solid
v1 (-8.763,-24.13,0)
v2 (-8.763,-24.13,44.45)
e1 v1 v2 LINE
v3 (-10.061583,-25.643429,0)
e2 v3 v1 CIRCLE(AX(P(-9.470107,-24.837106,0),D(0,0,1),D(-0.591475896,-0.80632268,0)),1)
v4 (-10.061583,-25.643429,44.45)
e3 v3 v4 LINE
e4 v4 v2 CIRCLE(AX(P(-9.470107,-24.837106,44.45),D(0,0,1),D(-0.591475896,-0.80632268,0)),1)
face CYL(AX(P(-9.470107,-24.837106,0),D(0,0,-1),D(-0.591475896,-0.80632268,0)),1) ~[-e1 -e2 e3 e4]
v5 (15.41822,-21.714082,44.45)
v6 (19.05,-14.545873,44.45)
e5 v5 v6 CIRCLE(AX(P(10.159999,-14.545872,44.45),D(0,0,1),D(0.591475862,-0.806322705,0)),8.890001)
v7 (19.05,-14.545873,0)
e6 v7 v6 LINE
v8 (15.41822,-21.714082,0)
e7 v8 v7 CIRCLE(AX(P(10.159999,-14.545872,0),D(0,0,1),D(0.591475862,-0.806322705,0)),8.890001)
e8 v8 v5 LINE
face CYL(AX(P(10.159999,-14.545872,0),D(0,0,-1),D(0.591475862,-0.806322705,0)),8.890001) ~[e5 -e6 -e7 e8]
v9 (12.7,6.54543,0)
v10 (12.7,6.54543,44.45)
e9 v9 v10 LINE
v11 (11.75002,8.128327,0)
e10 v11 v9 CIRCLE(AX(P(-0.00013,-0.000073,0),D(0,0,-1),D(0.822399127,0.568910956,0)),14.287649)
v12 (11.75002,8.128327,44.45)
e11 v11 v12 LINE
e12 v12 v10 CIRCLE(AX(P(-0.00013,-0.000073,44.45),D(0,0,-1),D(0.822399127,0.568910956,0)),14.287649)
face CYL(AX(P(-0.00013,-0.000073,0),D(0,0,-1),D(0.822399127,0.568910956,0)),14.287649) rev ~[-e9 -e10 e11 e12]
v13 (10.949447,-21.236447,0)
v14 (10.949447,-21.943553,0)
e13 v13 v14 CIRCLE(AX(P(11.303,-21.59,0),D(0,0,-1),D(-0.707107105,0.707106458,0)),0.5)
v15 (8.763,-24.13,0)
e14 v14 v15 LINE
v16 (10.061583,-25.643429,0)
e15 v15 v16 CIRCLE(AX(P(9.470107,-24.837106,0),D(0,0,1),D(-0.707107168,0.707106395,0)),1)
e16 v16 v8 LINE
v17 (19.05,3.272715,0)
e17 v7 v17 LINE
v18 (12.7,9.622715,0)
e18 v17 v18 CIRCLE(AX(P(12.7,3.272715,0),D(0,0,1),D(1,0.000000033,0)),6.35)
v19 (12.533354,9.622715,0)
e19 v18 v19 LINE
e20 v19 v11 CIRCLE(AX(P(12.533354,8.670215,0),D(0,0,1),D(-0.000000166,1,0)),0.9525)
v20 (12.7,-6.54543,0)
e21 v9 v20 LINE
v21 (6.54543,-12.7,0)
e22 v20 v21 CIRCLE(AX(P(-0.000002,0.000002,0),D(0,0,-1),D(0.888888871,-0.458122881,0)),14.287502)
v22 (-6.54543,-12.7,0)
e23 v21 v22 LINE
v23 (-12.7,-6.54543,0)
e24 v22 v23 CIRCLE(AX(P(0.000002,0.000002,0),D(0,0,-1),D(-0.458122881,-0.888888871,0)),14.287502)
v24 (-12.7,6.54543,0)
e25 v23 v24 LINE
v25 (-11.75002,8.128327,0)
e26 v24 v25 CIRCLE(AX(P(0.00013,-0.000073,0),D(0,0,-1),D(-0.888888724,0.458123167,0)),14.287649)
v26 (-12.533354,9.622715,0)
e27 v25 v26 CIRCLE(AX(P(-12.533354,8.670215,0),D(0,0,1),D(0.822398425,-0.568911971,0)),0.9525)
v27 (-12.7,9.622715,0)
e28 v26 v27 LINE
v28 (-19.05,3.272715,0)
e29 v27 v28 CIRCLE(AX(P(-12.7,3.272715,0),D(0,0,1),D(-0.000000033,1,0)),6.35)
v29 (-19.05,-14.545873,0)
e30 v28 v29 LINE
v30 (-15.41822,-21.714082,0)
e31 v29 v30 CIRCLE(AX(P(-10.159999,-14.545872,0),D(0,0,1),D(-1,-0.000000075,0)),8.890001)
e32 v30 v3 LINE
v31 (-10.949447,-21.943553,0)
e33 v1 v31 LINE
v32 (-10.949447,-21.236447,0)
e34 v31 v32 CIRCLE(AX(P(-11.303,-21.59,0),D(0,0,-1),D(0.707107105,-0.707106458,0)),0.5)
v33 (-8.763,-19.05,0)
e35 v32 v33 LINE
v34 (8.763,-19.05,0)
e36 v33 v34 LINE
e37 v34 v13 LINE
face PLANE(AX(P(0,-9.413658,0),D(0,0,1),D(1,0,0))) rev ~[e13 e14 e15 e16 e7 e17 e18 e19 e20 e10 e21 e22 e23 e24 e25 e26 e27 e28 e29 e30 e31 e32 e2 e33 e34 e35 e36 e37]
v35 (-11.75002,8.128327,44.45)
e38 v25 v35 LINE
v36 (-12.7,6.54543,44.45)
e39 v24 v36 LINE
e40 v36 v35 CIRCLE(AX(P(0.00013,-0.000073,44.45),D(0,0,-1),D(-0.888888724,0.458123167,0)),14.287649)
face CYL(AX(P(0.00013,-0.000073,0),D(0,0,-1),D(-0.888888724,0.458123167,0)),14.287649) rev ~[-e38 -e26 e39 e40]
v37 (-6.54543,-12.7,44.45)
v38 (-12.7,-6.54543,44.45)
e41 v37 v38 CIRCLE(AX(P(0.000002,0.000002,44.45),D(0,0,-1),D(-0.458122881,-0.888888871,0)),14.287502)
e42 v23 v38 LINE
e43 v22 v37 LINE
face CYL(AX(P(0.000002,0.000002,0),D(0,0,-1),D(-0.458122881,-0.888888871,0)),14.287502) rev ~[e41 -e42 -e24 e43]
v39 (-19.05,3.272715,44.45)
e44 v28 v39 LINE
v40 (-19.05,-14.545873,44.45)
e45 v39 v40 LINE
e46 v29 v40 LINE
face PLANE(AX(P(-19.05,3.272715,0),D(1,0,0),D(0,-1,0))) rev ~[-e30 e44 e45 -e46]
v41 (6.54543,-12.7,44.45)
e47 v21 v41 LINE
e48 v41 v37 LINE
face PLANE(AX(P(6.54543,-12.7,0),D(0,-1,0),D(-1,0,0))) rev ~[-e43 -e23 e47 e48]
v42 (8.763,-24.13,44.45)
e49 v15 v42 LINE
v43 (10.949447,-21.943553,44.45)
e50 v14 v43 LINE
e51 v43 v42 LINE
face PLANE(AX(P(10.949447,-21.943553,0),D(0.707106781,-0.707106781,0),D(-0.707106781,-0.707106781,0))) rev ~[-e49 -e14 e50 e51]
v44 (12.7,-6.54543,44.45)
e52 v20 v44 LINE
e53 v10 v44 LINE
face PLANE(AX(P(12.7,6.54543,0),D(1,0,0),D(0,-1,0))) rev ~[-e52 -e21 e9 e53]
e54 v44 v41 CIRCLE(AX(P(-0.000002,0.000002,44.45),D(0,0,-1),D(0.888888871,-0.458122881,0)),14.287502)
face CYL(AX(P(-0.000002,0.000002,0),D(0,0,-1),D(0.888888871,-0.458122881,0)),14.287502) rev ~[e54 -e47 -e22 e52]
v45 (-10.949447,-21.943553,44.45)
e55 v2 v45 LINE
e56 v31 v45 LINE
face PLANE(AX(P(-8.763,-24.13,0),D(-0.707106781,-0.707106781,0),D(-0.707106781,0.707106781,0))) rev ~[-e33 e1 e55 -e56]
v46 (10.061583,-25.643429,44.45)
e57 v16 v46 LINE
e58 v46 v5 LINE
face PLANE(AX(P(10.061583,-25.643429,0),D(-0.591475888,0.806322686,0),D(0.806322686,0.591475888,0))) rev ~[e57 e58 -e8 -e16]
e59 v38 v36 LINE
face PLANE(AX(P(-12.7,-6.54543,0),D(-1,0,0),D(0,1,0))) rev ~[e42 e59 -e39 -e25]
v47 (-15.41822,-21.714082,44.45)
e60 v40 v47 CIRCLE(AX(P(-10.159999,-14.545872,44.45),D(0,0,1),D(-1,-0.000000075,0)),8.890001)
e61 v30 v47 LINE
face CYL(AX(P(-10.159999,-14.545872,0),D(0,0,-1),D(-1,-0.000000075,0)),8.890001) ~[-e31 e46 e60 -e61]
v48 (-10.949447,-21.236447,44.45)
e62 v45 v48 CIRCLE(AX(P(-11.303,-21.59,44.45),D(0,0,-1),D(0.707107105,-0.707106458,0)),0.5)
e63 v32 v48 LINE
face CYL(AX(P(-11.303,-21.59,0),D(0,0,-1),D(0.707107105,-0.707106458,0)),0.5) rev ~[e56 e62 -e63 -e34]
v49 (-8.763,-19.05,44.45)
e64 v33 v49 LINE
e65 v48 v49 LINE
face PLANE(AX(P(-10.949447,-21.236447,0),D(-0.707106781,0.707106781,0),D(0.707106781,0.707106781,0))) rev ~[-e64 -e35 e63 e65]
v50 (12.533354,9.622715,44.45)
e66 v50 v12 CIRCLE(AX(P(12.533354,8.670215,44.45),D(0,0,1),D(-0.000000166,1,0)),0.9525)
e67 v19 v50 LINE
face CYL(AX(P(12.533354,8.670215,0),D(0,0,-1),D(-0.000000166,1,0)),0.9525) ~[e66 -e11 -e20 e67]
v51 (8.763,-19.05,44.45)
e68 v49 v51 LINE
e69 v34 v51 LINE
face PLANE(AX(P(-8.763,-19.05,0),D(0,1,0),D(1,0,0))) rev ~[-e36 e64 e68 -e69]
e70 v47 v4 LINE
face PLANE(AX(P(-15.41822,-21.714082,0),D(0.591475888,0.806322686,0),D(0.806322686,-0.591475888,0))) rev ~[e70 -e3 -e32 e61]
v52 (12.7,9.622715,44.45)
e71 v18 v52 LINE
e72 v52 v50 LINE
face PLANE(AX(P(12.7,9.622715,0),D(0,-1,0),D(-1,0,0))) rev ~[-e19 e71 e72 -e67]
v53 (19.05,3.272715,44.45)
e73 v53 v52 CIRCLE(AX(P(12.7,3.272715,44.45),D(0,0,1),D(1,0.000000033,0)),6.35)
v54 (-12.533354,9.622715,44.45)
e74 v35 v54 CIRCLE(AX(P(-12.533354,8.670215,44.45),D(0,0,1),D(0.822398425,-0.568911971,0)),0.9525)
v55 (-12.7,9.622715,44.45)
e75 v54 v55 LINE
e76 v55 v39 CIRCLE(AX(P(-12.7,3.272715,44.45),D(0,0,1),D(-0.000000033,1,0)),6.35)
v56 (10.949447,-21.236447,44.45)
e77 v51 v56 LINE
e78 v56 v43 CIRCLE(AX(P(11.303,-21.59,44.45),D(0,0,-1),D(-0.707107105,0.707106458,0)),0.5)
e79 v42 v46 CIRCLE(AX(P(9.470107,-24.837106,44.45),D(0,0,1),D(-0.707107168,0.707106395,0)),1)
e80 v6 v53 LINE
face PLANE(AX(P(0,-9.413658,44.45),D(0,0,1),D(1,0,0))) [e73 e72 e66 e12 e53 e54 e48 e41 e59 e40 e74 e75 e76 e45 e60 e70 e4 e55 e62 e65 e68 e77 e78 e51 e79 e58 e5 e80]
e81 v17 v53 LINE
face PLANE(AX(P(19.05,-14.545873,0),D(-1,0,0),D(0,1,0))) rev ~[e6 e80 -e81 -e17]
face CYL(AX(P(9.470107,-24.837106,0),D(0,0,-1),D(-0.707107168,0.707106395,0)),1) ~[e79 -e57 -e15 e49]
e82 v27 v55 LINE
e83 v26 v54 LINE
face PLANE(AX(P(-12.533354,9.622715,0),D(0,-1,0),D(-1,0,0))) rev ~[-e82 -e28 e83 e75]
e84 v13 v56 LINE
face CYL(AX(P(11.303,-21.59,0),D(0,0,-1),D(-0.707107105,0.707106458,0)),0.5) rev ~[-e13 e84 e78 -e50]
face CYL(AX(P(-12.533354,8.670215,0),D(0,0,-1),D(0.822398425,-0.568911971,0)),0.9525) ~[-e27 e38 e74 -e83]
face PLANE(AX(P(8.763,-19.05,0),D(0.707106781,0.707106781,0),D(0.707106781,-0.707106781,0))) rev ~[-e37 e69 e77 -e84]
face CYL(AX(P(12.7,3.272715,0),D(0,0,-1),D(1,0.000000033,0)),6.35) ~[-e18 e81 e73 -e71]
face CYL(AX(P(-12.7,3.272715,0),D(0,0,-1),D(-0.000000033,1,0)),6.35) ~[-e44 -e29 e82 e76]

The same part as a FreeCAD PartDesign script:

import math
import FreeCAD as App
import Part
import Sketcher

V = App.Vector
Q = App.Units.Quantity

doc = App.newDocument("Part")
params = doc.addObject("Spreadsheet::Sheet", "Params")
for row, (alias, value) in enumerate([
    ("sketch1_radius", "0.35 in"),
    ("sketch1_radius2", "0.25 in"),
    ("sketch1_radius3", "0.5625001 in"),
    ("sketch1_width", "0.69 in"),
    ("pad1_length", "1.75 in"),
], start=1):
    params.set(f"A{row}", alias)
    params.set(f"B{row}", "=" + value)
    params.setAlias(f"B{row}", alias)

body = doc.addObject("PartDesign::Body", "Body")

# Sketch on XY plane
sketch1 = doc.addObject("Sketcher::SketchObject", "Sketch")
body.addObject(sketch1)
sketch1.AttachmentSupport = (doc.XY_Plane, [""])
sketch1.MapMode = "FlatFace"
sketch1.addGeometry(Part.LineSegment(V(-10.95, -21.24, 0), V(-8.76, -19.05, 0)), False)
sketch1.addGeometry(Part.LineSegment(V(-8.76, -19.05, 0), V(8.76, -19.05, 0)), False)
sketch1.addGeometry(Part.LineSegment(V(8.76, -19.05, 0), V(10.95, -21.24, 0)), False)
sketch1.addGeometry(Part.ArcOfCircle(Part.Circle(V(11.3, -21.59, 0), V(0, 0, 1), 0.5), math.radians(-135), math.radians(135)), False)
sketch1.addGeometry(Part.LineSegment(V(10.95, -21.94, 0), V(8.76, -24.13, 0)), False)
sketch1.addGeometry(Part.ArcOfCircle(Part.Circle(V(9.47, -24.84, 0), V(0, 0, 1), 1), math.radians(135), math.radians(306)), False)
sketch1.addGeometry(Part.LineSegment(V(10.06, -25.64, 0), V(15.42, -21.71, 0)), False)
sketch1.addGeometry(Part.ArcOfCircle(Part.Circle(V(10.16, -14.55, 0), V(0, 0, 1), 8.89), math.radians(-54), math.radians(0)), False)
sketch1.addGeometry(Part.LineSegment(V(19.05, -14.55, 0), V(19.05, 3.27, 0)), False)
sketch1.addGeometry(Part.ArcOfCircle(Part.Circle(V(12.7, 3.27, 0), V(0, 0, 1), 6.35), math.radians(0), math.radians(90)), False)
sketch1.addGeometry(Part.LineSegment(V(12.7, 9.62, 0), V(12.53, 9.62, 0)), False)
sketch1.addGeometry(Part.ArcOfCircle(Part.Circle(V(12.53, 8.67, 0), V(0, 0, 1), 0.95), math.radians(90), math.radians(215)), False)
sketch1.addGeometry(Part.ArcOfCircle(Part.Circle(V(0, 0, 0), V(0, 0, 1), 14.29), math.radians(27.27), math.radians(34.67)), False)
sketch1.addGeometry(Part.LineSegment(V(12.7, 6.55, 0), V(12.7, -6.55, 0)), False)
sketch1.addGeometry(Part.ArcOfCircle(Part.Circle(V(0, 0, 0), V(0, 0, 1), 14.29), math.radians(-63), math.radians(-27)), False)
sketch1.addGeometry(Part.LineSegment(V(6.55, -12.7, 0), V(-6.55, -12.7, 0)), False)
sketch1.addGeometry(Part.ArcOfCircle(Part.Circle(V(0, 0, 0), V(0, 0, 1), 14.29), math.radians(-153), math.radians(-117)), False)
sketch1.addGeometry(Part.LineSegment(V(-12.7, -6.55, 0), V(-12.7, 6.55, 0)), False)
sketch1.addGeometry(Part.ArcOfCircle(Part.Circle(V(0, 0, 0), V(0, 0, 1), 14.29), math.radians(145.33), math.radians(152.73)), False)
sketch1.addGeometry(Part.ArcOfCircle(Part.Circle(V(-12.53, 8.67, 0), V(0, 0, 1), 0.95), math.radians(-35), math.radians(90)), False)
sketch1.addGeometry(Part.LineSegment(V(-12.53, 9.62, 0), V(-12.7, 9.62, 0)), False)
sketch1.addGeometry(Part.ArcOfCircle(Part.Circle(V(-12.7, 3.27, 0), V(0, 0, 1), 6.35), math.radians(90), math.radians(180)), False)
sketch1.addGeometry(Part.LineSegment(V(-19.05, 3.27, 0), V(-19.05, -14.55, 0)), False)
sketch1.addGeometry(Part.ArcOfCircle(Part.Circle(V(-10.16, -14.55, 0), V(0, 0, 1), 8.89), math.radians(-180), math.radians(-126)), False)
sketch1.addGeometry(Part.LineSegment(V(-15.42, -21.71, 0), V(-10.06, -25.64, 0)), False)
sketch1.addGeometry(Part.ArcOfCircle(Part.Circle(V(-9.47, -24.84, 0), V(0, 0, 1), 1), math.radians(-126), math.radians(45)), False)
sketch1.addGeometry(Part.LineSegment(V(-8.76, -24.13, 0), V(-10.95, -21.94, 0)), False)
sketch1.addGeometry(Part.ArcOfCircle(Part.Circle(V(-11.3, -21.59, 0), V(0, 0, 1), 0.5), math.radians(45), math.radians(315)), False)
sketch1.addConstraint(Sketcher.Constraint("Coincident", 0, 2, 1, 1))
sketch1.addConstraint(Sketcher.Constraint("Coincident", 1, 2, 2, 1))
sketch1.addConstraint(Sketcher.Constraint("Coincident", 2, 2, 3, 2))
sketch1.addConstraint(Sketcher.Constraint("Coincident", 3, 1, 4, 1))
sketch1.addConstraint(Sketcher.Constraint("Tangent", 4, 2, 5, 1))
sketch1.addConstraint(Sketcher.Constraint("Tangent", 5, 2, 6, 1))
sketch1.addConstraint(Sketcher.Constraint("Tangent", 6, 2, 7, 1))
sketch1.addConstraint(Sketcher.Constraint("Tangent", 7, 2, 8, 1))
sketch1.addConstraint(Sketcher.Constraint("Tangent", 8, 2, 9, 1))
sketch1.addConstraint(Sketcher.Constraint("Tangent", 9, 2, 10, 1))
sketch1.addConstraint(Sketcher.Constraint("Tangent", 10, 2, 11, 1))
sketch1.addConstraint(Sketcher.Constraint("Tangent", 11, 2, 12, 2))
sketch1.addConstraint(Sketcher.Constraint("Coincident", 12, 1, 13, 1))
sketch1.addConstraint(Sketcher.Constraint("Coincident", 13, 2, 14, 2))
sketch1.addConstraint(Sketcher.Constraint("Coincident", 14, 1, 15, 1))
sketch1.addConstraint(Sketcher.Constraint("Coincident", 15, 2, 16, 2))
sketch1.addConstraint(Sketcher.Constraint("Coincident", 16, 1, 17, 1))
sketch1.addConstraint(Sketcher.Constraint("Coincident", 17, 2, 18, 2))
sketch1.addConstraint(Sketcher.Constraint("Tangent", 18, 1, 19, 1))
sketch1.addConstraint(Sketcher.Constraint("Tangent", 19, 2, 20, 1))
sketch1.addConstraint(Sketcher.Constraint("Tangent", 20, 2, 21, 1))
sketch1.addConstraint(Sketcher.Constraint("Tangent", 21, 2, 22, 1))
sketch1.addConstraint(Sketcher.Constraint("Tangent", 22, 2, 23, 1))
sketch1.addConstraint(Sketcher.Constraint("Tangent", 23, 2, 24, 1))
sketch1.addConstraint(Sketcher.Constraint("Tangent", 24, 2, 25, 1))
sketch1.addConstraint(Sketcher.Constraint("Tangent", 25, 2, 26, 1))
sketch1.addConstraint(Sketcher.Constraint("Coincident", 26, 2, 27, 2))
sketch1.addConstraint(Sketcher.Constraint("Coincident", 27, 1, 0, 1))
sketch1.addConstraint(Sketcher.Constraint("Horizontal", 1))
sketch1.addConstraint(Sketcher.Constraint("Vertical", 8))
sketch1.addConstraint(Sketcher.Constraint("Horizontal", 10))
sketch1.addConstraint(Sketcher.Constraint("Vertical", 13))
sketch1.addConstraint(Sketcher.Constraint("Horizontal", 15))
sketch1.addConstraint(Sketcher.Constraint("Vertical", 17))
sketch1.addConstraint(Sketcher.Constraint("Horizontal", 20))
sketch1.addConstraint(Sketcher.Constraint("Vertical", 22))
sketch1.addConstraint(Sketcher.Constraint("Coincident", 14, 3, -1, 1))
sketch1.addConstraint(Sketcher.Constraint("Coincident", 16, 3, -1, 1))
sketch1.addConstraint(Sketcher.Constraint("Equal", 14, 16))
sketch1.addConstraint(Sketcher.Constraint("Equal", 12, 18))
sketch1.addConstraint(Sketcher.Constraint("Equal", 11, 19))
sketch1.addConstraint(Sketcher.Constraint("Equal", 9, 21))
sketch1.addConstraint(Sketcher.Constraint("Equal", 7, 23))
sketch1.addConstraint(Sketcher.Constraint("Equal", 5, 25))
sketch1.addConstraint(Sketcher.Constraint("Equal", 3, 27))
sketch1.addConstraint(Sketcher.Constraint("Symmetric", 12, 1, 16, 1, -1, 1))
sketch1.addConstraint(Sketcher.Constraint("Symmetric", 12, 3, 18, 3, -2))
sketch1.addConstraint(Sketcher.Constraint("Symmetric", 9, 3, 21, 3, -2))
sketch1.addConstraint(Sketcher.Constraint("Symmetric", 5, 3, 25, 3, -2))
sketch1.addConstraint(Sketcher.Constraint("Symmetric", 3, 3, 27, 3, -2))
sketch1.addConstraint(Sketcher.Constraint("Perpendicular", 0, 2))
sketch1.addConstraint(Sketcher.Constraint("Perpendicular", 2, 4))
sketch1.addConstraint(Sketcher.Constraint("Perpendicular", 4, 26))
sketch1.addConstraint(Sketcher.Constraint("Horizontal", 7, 3, 23, 3))
sketch1.addConstraint(Sketcher.Constraint("Horizontal", 4, 2, 25, 2))
sketch1.addConstraint(Sketcher.Constraint("Horizontal", 2, 2, 27, 1))
sketch1.addConstraint(Sketcher.Constraint("Vertical", 2, 2, 3, 1))
sketch1.addConstraint(Sketcher.Constraint("Vertical", 1, 2, 4, 2))
sketch1.addConstraint(Sketcher.Constraint("Vertical", 9, 2, 12, 1))
sketch1.addConstraint(Sketcher.Constraint("Equal", 15, 13))
sketch1.addConstraint(Sketcher.Constraint("Radius", 7, Q("0.35 in")))
sketch1.addConstraint(Sketcher.Constraint("Radius", 9, Q("0.25 in")))
sketch1.addConstraint(Sketcher.Constraint("Radius", 14, Q("0.5625001 in")))
sketch1.addConstraint(Sketcher.Constraint("DistanceX", 1, 1, 1, 2, Q("0.69 in")))
sketch1.addConstraint(Sketcher.Constraint("DistanceX", -1, 1, 7, 3, Q("0.4 in")))
sketch1.addConstraint(Sketcher.Constraint("Radius", 11, Q("0.0375 in")))
sketch1.addConstraint(Sketcher.Constraint("DistanceX", 27, 3, 0, 2, Q("0.1 in")))
sketch1.addConstraint(Sketcher.Constraint("DistanceY", 27, 3, 0, 2, Q("0.1 in")))
sketch1.addConstraint(Sketcher.Constraint("DistanceY", 3, 3, -1, 1, Q("0.85 in")))
sketch1.addConstraint(Sketcher.Constraint("Radius", 3, Q("0.5 mm")))
sketch1.addConstraint(Sketcher.Constraint("Radius", 5, Q("1 mm")))
sketch1.addConstraint(Sketcher.Constraint("Radius", 12, Q("14.287649 mm")))
sketch1.addConstraint(Sketcher.Constraint("DistanceY", 7, 3, 12, 3, Q("14.545799 mm")))
sketch1.addConstraint(Sketcher.Constraint("DistanceY", 12, 3, 18, 1, Q("8.1284 mm")))
sketch1.addConstraint(Sketcher.Constraint("Distance", 6, Q("6.643292 mm")))
sketch1.setExpression("Constraints[60]", "Params.sketch1_radius")
sketch1.setExpression("Constraints[61]", "Params.sketch1_radius2")
sketch1.setExpression("Constraints[62]", "Params.sketch1_radius3")
sketch1.setExpression("Constraints[63]", "Params.sketch1_width")
pad1 = doc.addObject("PartDesign::Pad", "Pad")
body.addObject(pad1)
pad1.Profile = sketch1
pad1.setExpression("Length", "Params.pad1_length")

doc.recompute()
